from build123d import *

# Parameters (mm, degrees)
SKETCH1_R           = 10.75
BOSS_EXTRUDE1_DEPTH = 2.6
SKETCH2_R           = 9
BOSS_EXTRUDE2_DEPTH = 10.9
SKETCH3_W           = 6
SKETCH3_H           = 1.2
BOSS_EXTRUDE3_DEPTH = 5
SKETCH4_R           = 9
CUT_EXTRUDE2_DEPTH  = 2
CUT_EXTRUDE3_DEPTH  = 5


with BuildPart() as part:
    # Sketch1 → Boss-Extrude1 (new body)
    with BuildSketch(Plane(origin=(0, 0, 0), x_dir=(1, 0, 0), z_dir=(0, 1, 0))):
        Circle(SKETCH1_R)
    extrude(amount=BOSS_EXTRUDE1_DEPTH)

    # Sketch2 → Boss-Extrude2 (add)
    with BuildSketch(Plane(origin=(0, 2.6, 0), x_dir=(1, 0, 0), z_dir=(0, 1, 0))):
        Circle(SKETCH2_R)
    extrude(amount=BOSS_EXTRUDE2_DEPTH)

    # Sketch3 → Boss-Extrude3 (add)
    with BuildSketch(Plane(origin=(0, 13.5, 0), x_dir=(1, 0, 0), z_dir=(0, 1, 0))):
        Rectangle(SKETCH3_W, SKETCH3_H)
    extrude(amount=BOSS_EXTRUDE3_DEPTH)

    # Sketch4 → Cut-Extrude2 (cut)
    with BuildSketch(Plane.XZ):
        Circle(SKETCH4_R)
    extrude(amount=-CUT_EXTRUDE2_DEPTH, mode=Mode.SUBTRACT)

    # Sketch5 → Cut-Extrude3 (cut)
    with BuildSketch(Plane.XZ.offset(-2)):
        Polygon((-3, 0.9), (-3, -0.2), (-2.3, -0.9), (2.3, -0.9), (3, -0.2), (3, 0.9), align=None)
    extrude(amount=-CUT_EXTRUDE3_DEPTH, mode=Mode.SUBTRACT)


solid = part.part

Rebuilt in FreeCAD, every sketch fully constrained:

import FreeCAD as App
import Part
import Sketcher
Q = App.Units.Quantity

doc = App.newDocument("Part")
params = doc.addObject("Spreadsheet::Sheet", "Params")
for row, (alias, value) in enumerate([
    ("sketch1_diameter", "21.5 mm"),
    ("pad1_length", "2.6 mm"),
    ("sketch2_diameter", "18 mm"),
    ("pad2_length", "10.9 mm"),
    ("sketch3_width", "6 mm"),
    ("sketch3_height", "1.2 mm"),
    ("pad3_length", "5 mm"),
    ("sketch4_diameter", "18 mm"),
    ("pocket1_length", "2 mm"),
    ("sketch5_width", "6 mm"),
    ("sketch5_width2", "4.6 mm"),
    ("sketch5_height", "1.1 mm"),
    ("pocket2_length", "5 mm"),
], start=1):
    params.set(f"A{row}", alias)
    params.set(f"B{row}", "=" + value)
    params.setAlias(f"B{row}", alias)

body = doc.addObject("PartDesign::Body", "Body")

# Sketch on XZ plane
sketch1 = body.newObject("Sketcher::SketchObject", "Sketch")
sketch1.AttachmentSupport = (doc.getObject("XZ_Plane"), [""])
sketch1.MapMode = "FlatFace"
sketch1.addGeometry(Part.Circle(App.Vector(0, 0, 0), App.Vector(0, 0, 1), 10.75), False)
sketch1.addConstraint(Sketcher.Constraint("Coincident", 0, 3, -1, 1))
sketch1.addConstraint(Sketcher.Constraint("Diameter", 0, Q("21.5 mm")))
sketch1.setExpression("Constraints[1]", "Params.sketch1_diameter")
pad1 = body.newObject("PartDesign::Pad", "Pad")
pad1.Profile = sketch1
pad1.setExpression("Length", "Params.pad1_length")
pad1.Reversed = True

# Sketch on XZ plane
sketch2 = body.newObject("Sketcher::SketchObject", "Sketch001")
sketch2.AttachmentSupport = (doc.getObject("XZ_Plane"), [""])
sketch2.MapMode = "FlatFace"
sketch2.AttachmentOffset = App.Placement(App.Vector(0, 0, -2.6), App.Rotation())
sketch2.addGeometry(Part.Circle(App.Vector(0, 0, 0), App.Vector(0, 0, 1), 9), False)
sketch2.addConstraint(Sketcher.Constraint("Coincident", 0, 3, -1, 1))
sketch2.addConstraint(Sketcher.Constraint("Diameter", 0, Q("18 mm")))
sketch2.setExpression("Constraints[1]", "Params.sketch2_diameter")
pad2 = body.newObject("PartDesign::Pad", "Pad001")
pad2.Profile = sketch2
pad2.setExpression("Length", "Params.pad2_length")
pad2.Reversed = True

# Sketch on XZ plane
sketch3 = body.newObject("Sketcher::SketchObject", "Sketch002")
sketch3.AttachmentSupport = (doc.getObject("XZ_Plane"), [""])
sketch3.MapMode = "FlatFace"
sketch3.AttachmentOffset = App.Placement(App.Vector(0, 0, -13.5), App.Rotation())
sketch3.addGeometry(Part.LineSegment(App.Vector(-3, -0.6, 0), App.Vector(-3, 0.6, 0)), False)
sketch3.addGeometry(Part.LineSegment(App.Vector(-3, 0.6, 0), App.Vector(3, 0.6, 0)), False)
sketch3.addGeometry(Part.LineSegment(App.Vector(3, 0.6, 0), App.Vector(3, -0.6, 0)), False)
sketch3.addGeometry(Part.LineSegment(App.Vector(3, -0.6, 0), App.Vector(-3, -0.6, 0)), False)
sketch3.addConstraint(Sketcher.Constraint("Coincident", 0, 2, 1, 1))
sketch3.addConstraint(Sketcher.Constraint("Coincident", 1, 2, 2, 1))
sketch3.addConstraint(Sketcher.Constraint("Coincident", 2, 2, 3, 1))
sketch3.addConstraint(Sketcher.Constraint("Coincident", 3, 2, 0, 1))
sketch3.addConstraint(Sketcher.Constraint("Vertical", 0))
sketch3.addConstraint(Sketcher.Constraint("Horizontal", 1))
sketch3.addConstraint(Sketcher.Constraint("Vertical", 2))
sketch3.addConstraint(Sketcher.Constraint("Horizontal", 3))
sketch3.addConstraint(Sketcher.Constraint("Symmetric", 0, 2, 2, 2, -1, 1))
sketch3.addConstraint(Sketcher.Constraint("DistanceX", 1, 1, 1, 2, Q("6 mm")))
sketch3.addConstraint(Sketcher.Constraint("DistanceY", 0, 1, 0, 2, Q("1.2 mm")))
sketch3.setExpression("Constraints[9]", "Params.sketch3_width")
sketch3.setExpression("Constraints[10]", "Params.sketch3_height")
pad3 = body.newObject("PartDesign::Pad", "Pad002")
pad3.Profile = sketch3
pad3.setExpression("Length", "Params.pad3_length")
pad3.Reversed = True

# Sketch on XZ plane
sketch4 = body.newObject("Sketcher::SketchObject", "Sketch003")
sketch4.AttachmentSupport = (doc.getObject("XZ_Plane"), [""])
sketch4.MapMode = "FlatFace"
sketch4.addGeometry(Part.Circle(App.Vector(0, 0, 0), App.Vector(0, 0, 1), 9), False)
sketch4.addConstraint(Sketcher.Constraint("Coincident", 0, 3, -1, 1))
sketch4.addConstraint(Sketcher.Constraint("Diameter", 0, Q("18 mm")))
sketch4.setExpression("Constraints[1]", "Params.sketch4_diameter")
pocket1 = body.newObject("PartDesign::Pocket", "Pocket")
pocket1.Profile = sketch4
pocket1.setExpression("Length", "Params.pocket1_length")

# Sketch on XZ plane
sketch5 = body.newObject("Sketcher::SketchObject", "Sketch004")
sketch5.AttachmentSupport = (doc.getObject("XZ_Plane"), [""])
sketch5.MapMode = "FlatFace"
sketch5.AttachmentOffset = App.Placement(App.Vector(0, 0, -2), App.Rotation())
sketch5.addGeometry(Part.LineSegment(App.Vector(-3, 0.9, 0), App.Vector(-3, -0.2, 0)), False)
sketch5.addGeometry(Part.LineSegment(App.Vector(-3, -0.2, 0), App.Vector(-2.3, -0.9, 0)), False)
sketch5.addGeometry(Part.LineSegment(App.Vector(-2.3, -0.9, 0), App.Vector(2.3, -0.9, 0)), False)
sketch5.addGeometry(Part.LineSegment(App.Vector(2.3, -0.9, 0), App.Vector(3, -0.2, 0)), False)
sketch5.addGeometry(Part.LineSegment(App.Vector(3, -0.2, 0), App.Vector(3, 0.9, 0)), False)
sketch5.addGeometry(Part.LineSegment(App.Vector(3, 0.9, 0), App.Vector(-3, 0.9, 0)), False)
sketch5.addConstraint(Sketcher.Constraint("Coincident", 0, 2, 1, 1))
sketch5.addConstraint(Sketcher.Constraint("Coincident", 1, 2, 2, 1))
sketch5.addConstraint(Sketcher.Constraint("Coincident", 2, 2, 3, 1))
sketch5.addConstraint(Sketcher.Constraint("Coincident", 3, 2, 4, 1))
sketch5.addConstraint(Sketcher.Constraint("Coincident", 4, 2, 5, 1))
sketch5.addConstraint(Sketcher.Constraint("Coincident", 5, 2, 0, 1))
sketch5.addConstraint(Sketcher.Constraint("Vertical", 0))
sketch5.addConstraint(Sketcher.Constraint("Horizontal", 2))
sketch5.addConstraint(Sketcher.Constraint("Vertical", 4))
sketch5.addConstraint(Sketcher.Constraint("Horizontal", 5))
sketch5.addConstraint(Sketcher.Constraint("Symmetric", 0, 2, 3, 2, -2))
sketch5.addConstraint(Sketcher.Constraint("Perpendicular", 1, 3))
sketch5.addConstraint(Sketcher.Constraint("Equal", 1, 3))
sketch5.addConstraint(Sketcher.Constraint("DistanceX", 5, 2, 5, 1, Q("6 mm")))
sketch5.addConstraint(Sketcher.Constraint("DistanceX", 2, 1, 2, 2, Q("4.6 mm")))
sketch5.addConstraint(Sketcher.Constraint("DistanceY", 0, 2, 0, 1, Q("1.1 mm")))
sketch5.addConstraint(Sketcher.Constraint("DistanceY", 0, 2, -1, 1, Q("0.2 mm")))
sketch5.setExpression("Constraints[13]", "Params.sketch5_width")
sketch5.setExpression("Constraints[14]", "Params.sketch5_width2")
sketch5.setExpression("Constraints[15]", "Params.sketch5_height")
pocket2 = body.newObject("PartDesign::Pocket", "Pocket001")
pocket2.Profile = sketch5
pocket2.setExpression("Length", "Params.pocket2_length")

doc.recompute()
